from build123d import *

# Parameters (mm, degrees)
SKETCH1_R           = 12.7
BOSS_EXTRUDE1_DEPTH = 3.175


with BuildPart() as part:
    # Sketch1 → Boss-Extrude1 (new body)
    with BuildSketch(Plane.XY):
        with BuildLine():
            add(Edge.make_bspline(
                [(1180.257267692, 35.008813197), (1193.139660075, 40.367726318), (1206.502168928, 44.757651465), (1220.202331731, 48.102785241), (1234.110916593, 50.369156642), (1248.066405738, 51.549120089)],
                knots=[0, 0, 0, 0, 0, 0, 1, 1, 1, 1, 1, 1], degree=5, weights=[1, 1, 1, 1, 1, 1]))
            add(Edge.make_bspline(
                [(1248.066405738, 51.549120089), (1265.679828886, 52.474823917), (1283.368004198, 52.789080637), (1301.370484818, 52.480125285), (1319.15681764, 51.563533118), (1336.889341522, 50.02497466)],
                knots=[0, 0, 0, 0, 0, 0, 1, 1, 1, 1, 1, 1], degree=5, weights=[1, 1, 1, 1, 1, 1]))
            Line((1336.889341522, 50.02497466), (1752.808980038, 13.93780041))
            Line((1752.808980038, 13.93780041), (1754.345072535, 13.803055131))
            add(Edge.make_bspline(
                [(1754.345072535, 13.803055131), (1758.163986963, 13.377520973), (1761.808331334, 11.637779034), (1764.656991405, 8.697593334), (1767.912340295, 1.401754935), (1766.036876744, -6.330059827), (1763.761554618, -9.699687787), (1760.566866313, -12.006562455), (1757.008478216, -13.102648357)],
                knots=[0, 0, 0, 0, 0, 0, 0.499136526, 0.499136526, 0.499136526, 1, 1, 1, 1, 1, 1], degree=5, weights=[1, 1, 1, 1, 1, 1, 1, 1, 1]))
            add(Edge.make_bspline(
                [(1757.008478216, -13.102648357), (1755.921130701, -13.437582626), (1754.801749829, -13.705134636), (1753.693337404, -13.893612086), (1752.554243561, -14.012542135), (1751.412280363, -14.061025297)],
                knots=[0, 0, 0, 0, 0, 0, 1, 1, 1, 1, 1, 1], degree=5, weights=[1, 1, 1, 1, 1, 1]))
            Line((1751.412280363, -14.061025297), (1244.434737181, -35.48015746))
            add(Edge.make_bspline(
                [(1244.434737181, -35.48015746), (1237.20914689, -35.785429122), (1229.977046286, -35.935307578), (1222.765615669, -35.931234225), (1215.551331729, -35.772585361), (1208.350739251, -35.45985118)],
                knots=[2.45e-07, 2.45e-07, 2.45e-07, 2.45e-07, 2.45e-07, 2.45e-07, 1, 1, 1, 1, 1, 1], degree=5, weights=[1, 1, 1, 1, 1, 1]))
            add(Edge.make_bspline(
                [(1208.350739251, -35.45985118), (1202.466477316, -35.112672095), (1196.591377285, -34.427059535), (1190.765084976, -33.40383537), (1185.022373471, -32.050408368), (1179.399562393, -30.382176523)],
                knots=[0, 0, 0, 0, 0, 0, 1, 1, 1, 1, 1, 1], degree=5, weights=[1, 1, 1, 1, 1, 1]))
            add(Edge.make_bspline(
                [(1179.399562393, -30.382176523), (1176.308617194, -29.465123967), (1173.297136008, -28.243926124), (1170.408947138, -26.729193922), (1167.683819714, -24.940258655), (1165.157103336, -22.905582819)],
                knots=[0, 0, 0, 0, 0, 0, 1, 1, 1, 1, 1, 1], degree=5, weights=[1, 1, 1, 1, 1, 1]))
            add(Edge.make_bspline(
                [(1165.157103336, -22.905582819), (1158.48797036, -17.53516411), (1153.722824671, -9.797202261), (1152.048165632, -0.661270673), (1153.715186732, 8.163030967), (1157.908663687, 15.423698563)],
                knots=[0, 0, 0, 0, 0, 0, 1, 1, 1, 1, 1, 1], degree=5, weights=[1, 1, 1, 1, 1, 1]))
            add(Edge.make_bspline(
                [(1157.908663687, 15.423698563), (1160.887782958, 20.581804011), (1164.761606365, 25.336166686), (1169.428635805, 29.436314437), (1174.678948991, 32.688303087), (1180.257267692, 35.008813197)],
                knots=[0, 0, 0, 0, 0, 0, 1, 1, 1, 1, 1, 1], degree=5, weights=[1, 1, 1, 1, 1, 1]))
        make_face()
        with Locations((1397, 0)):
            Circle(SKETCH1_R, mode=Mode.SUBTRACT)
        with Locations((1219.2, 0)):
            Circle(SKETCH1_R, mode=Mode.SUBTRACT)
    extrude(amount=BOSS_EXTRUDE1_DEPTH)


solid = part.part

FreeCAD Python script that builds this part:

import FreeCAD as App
import Part
import Sketcher

V = App.Vector
Q = App.Units.Quantity

doc = App.newDocument("Part")
body = doc.addObject("PartDesign::Body", "Body")

# Sketch on XY plane
sketch1 = body.newObject("Sketcher::SketchObject", "Sketch")
sketch1.AttachmentSupport = (doc.getObject("XY_Plane"), [""])
sketch1.MapMode = "FlatFace"
sketch1.addGeometry(Part.BSplineCurve([V(1180.257268, 35.008813, 0), V(1193.13966, 40.367726, 0), V(1206.502169, 44.757651, 0), V(1220.202332, 48.102785, 0), V(1234.110917, 50.369157, 0), V(1248.066406, 51.54912, 0)], [6, 6], [0, 1], False, 5, [1, 1, 1, 1, 1, 1], False), False)
sketch1.addGeometry(Part.BSplineCurve([V(1157.908664, 15.423699, 0), V(1160.887783, 20.581804, 0), V(1164.761606, 25.336167, 0), V(1169.428636, 29.436314, 0), V(1174.678949, 32.688303, 0), V(1180.257268, 35.008813, 0)], [6, 6], [0, 1], False, 5, [1, 1, 1, 1, 1, 1], False), False)
sketch1.addGeometry(Part.BSplineCurve([V(1165.157103, -22.905583, 0), V(1158.48797, -17.535164, 0), V(1153.722825, -9.797202, 0), V(1152.048166, -0.661271, 0), V(1153.715187, 8.163031, 0), V(1157.908664, 15.423699, 0)], [6, 6], [0, 1], False, 5, [1, 1, 1, 1, 1, 1], False), False)
sketch1.addGeometry(Part.BSplineCurve([V(1179.399562, -30.382177, 0), V(1176.308617, -29.465124, 0), V(1173.297136, -28.243926, 0), V(1170.408947, -26.729194, 0), V(1167.68382, -24.940259, 0), V(1165.157103, -22.905583, 0)], [6, 6], [0, 1], False, 5, [1, 1, 1, 1, 1, 1], False), False)
sketch1.addGeometry(Part.BSplineCurve([V(1208.350739, -35.459851, 0), V(1202.466477, -35.112672, 0), V(1196.591377, -34.42706, 0), V(1190.765085, -33.403835, 0), V(1185.022373, -32.050408, 0), V(1179.399562, -30.382177, 0)], [6, 6], [0, 1], False, 5, [1, 1, 1, 1, 1, 1], False), False)
sketch1.addGeometry(Part.BSplineCurve([V(1244.434737, -35.480157, 0), V(1237.209147, -35.785429, 0), V(1229.977046, -35.935308, 0), V(1222.765616, -35.931234, 0), V(1215.551332, -35.772585, 0), V(1208.350739, -35.459851, 0)], [6, 6], [0.000000245, 1], False, 5, [1, 1, 1, 1, 1, 1], False), False)
sketch1.addGeometry(Part.LineSegment(V(1244.434737, -35.480157, 0), V(1751.41228, -14.061025, 0)), False)
sketch1.addGeometry(Part.BSplineCurve([V(1757.008478, -13.102648, 0), V(1755.921131, -13.437583, 0), V(1754.80175, -13.705135, 0), V(1753.693337, -13.893612, 0), V(1752.554244, -14.012542, 0), V(1751.41228, -14.061025, 0)], [6, 6], [0, 1], False, 5, [1, 1, 1, 1, 1, 1], False), False)
sketch1.addGeometry(Part.BSplineCurve([V(1754.345073, 13.803055, 0), V(1758.163987, 13.377521, 0), V(1761.808331, 11.637779, 0), V(1764.656991, 8.697593, 0), V(1767.91234, 1.401755, 0), V(1766.036877, -6.33006, 0), V(1763.761555, -9.699688, 0), V(1760.566866, -12.006562, 0), V(1757.008478, -13.102648, 0)], [6, 3, 6], [0, 0.499136526, 1], False, 5, [1, 1, 1, 1, 1, 1, 1, 1, 1], False), False)
sketch1.addGeometry(Part.LineSegment(V(1754.345073, 13.803055, 0), V(1752.80898, 13.9378, 0)), False)
sketch1.addGeometry(Part.LineSegment(V(1752.80898, 13.9378, 0), V(1336.889342, 50.024975, 0)), False)
sketch1.addGeometry(Part.BSplineCurve([V(1248.066406, 51.54912, 0), V(1265.679829, 52.474824, 0), V(1283.368004, 52.789081, 0), V(1301.370485, 52.480125, 0), V(1319.156818, 51.563533, 0), V(1336.889342, 50.024975, 0)], [6, 6], [0, 1], False, 5, [1, 1, 1, 1, 1, 1], False), False)
sketch1.addGeometry(Part.Circle(V(1397, 0, 0), V(0, 0, 1), 12.7), False)
sketch1.addGeometry(Part.Circle(V(1219.2, 0, 0), V(0, 0, 1), 12.7), False)
sketch1.addConstraint(Sketcher.Constraint("Block", 0))
sketch1.addConstraint(Sketcher.Constraint("Block", 1))
sketch1.addConstraint(Sketcher.Constraint("Block", 2))
sketch1.addConstraint(Sketcher.Constraint("Block", 3))
sketch1.addConstraint(Sketcher.Constraint("Block", 4))
sketch1.addConstraint(Sketcher.Constraint("Block", 5))
sketch1.addConstraint(Sketcher.Constraint("Block", 7))
sketch1.addConstraint(Sketcher.Constraint("Block", 8))
sketch1.addConstraint(Sketcher.Constraint("Block", 11))
sketch1.addConstraint(Sketcher.Constraint("Coincident", 5, 1, 6, 1))
sketch1.addConstraint(Sketcher.Constraint("Coincident", 6, 2, 7, 2))
sketch1.addConstraint(Sketcher.Constraint("Coincident", 8, 1, 9, 1))
sketch1.addConstraint(Sketcher.Constraint("Coincident", 9, 2, 10, 1))
sketch1.addConstraint(Sketcher.Constraint("Coincident", 10, 2, 11, 2))
sketch1.addConstraint(Sketcher.Constraint("Equal", 12, 13))
sketch1.addConstraint(Sketcher.Constraint("PointOnObject", 12, 3, -1))
sketch1.addConstraint(Sketcher.Constraint("PointOnObject", 13, 3, -1))
sketch1.addConstraint(Sketcher.Constraint("Diameter", 12, Q("1 in")))
sketch1.addConstraint(Sketcher.Constraint("DistanceX", -1, 1, 12, 3, Q("55 in")))
sketch1.addConstraint(Sketcher.Constraint("DistanceX", -1, 1, 13, 3, Q("48 in")))
sketch1.addConstraint(Sketcher.Constraint("DistanceY", -1, 1, 9, 2, Q("13.9378 mm")))
sketch1.addConstraint(Sketcher.Constraint("DistanceX", 6, 2, 9, 2, Q("1.3967 mm")))
pad1 = body.newObject("PartDesign::Pad", "Pad")
pad1.Profile = sketch1
pad1.Length = Q("0.125 in")

doc.recompute()
